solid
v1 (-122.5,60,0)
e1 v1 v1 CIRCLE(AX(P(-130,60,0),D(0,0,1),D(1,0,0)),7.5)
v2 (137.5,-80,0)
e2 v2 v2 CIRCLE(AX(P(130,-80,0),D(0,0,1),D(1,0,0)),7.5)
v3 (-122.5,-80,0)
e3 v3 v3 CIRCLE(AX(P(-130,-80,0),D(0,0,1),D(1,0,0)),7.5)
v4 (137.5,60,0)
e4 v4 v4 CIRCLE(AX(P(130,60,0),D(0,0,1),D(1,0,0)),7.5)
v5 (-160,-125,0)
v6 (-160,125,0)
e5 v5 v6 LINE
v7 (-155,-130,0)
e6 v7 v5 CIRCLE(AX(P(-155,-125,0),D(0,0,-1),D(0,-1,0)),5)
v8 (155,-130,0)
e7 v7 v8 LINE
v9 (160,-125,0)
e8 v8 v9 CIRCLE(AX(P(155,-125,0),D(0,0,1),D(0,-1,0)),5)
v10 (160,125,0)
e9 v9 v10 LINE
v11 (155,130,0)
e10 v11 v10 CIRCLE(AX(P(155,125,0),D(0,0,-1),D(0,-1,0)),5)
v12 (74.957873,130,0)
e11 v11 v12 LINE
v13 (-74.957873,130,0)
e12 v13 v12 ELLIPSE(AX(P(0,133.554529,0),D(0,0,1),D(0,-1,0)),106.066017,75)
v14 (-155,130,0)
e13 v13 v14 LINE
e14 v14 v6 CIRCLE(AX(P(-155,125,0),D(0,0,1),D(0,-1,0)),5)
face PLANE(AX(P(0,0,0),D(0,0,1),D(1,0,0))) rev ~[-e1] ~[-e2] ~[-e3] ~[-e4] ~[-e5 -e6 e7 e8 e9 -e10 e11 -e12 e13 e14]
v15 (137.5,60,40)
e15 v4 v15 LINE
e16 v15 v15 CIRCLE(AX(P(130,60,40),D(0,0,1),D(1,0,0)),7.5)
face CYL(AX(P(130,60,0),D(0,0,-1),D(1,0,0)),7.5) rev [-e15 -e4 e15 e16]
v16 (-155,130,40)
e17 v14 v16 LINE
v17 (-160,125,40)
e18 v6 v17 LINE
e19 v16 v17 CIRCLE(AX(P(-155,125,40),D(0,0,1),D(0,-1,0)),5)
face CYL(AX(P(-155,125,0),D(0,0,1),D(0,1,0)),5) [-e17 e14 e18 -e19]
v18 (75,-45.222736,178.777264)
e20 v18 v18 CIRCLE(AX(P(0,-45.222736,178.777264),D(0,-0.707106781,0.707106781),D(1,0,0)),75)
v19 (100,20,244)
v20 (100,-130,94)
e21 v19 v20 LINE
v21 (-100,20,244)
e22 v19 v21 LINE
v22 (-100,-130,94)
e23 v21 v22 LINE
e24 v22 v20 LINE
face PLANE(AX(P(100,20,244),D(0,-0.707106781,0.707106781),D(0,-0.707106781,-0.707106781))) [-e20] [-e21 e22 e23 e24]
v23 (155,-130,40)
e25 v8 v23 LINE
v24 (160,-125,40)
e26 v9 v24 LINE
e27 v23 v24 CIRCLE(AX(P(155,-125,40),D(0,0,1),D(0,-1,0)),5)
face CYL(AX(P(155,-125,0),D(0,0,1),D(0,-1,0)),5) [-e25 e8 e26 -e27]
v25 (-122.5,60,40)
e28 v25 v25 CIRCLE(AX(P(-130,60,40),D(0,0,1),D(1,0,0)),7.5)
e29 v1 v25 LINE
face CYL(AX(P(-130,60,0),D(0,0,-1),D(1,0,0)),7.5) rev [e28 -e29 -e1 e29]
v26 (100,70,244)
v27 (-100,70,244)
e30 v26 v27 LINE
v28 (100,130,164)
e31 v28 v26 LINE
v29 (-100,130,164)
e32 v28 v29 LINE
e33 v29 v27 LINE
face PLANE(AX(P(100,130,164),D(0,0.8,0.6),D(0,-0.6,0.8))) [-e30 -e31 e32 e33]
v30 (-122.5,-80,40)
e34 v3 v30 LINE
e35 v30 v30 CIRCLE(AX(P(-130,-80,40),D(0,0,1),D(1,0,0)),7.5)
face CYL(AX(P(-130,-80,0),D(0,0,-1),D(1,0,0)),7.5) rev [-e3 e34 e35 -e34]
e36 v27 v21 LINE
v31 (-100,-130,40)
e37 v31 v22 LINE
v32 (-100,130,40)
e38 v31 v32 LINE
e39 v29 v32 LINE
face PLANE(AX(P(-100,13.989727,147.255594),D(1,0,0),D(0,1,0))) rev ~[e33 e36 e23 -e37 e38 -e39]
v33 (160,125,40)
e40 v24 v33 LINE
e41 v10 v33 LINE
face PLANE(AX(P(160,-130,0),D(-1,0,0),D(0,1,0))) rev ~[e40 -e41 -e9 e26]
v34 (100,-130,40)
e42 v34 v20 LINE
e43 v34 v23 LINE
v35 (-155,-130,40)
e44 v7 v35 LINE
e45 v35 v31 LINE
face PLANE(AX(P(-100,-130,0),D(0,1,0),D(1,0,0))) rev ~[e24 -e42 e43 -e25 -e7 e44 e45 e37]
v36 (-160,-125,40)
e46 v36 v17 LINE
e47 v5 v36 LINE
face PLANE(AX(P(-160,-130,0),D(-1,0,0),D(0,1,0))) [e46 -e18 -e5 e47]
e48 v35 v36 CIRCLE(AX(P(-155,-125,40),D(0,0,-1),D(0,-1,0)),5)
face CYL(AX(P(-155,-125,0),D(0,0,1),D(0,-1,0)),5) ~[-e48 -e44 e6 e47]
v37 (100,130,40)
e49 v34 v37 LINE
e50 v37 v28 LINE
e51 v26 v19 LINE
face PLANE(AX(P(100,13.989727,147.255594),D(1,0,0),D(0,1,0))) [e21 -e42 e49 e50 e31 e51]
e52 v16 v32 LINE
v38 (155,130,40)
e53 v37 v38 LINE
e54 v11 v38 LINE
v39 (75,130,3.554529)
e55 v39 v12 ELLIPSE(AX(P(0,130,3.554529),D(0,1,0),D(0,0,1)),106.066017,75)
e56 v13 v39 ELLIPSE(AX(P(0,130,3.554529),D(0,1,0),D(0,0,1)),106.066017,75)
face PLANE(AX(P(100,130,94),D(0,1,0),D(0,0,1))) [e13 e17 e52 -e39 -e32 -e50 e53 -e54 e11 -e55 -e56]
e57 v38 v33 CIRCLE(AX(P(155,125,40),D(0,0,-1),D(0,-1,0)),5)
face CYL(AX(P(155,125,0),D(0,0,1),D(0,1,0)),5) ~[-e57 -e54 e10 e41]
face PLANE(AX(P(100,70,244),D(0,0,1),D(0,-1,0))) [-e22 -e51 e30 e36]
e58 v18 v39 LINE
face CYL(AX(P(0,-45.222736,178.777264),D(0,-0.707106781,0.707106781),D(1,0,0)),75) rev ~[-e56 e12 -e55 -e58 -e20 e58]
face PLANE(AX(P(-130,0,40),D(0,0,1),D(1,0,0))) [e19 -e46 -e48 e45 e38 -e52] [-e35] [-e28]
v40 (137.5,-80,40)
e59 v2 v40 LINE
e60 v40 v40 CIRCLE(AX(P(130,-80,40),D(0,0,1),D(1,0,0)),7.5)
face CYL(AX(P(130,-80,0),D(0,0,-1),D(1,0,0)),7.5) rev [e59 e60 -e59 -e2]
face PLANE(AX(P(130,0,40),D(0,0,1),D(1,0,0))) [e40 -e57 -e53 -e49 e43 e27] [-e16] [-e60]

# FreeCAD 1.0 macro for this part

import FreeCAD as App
import Part
import Sketcher
from FreeCAD import Vector
Q = App.Units.Quantity


def edges_at(feature, points):
    """Names of the edges that pass closest to the given points."""
    edges = feature.Shape.Edges
    near = lambda p: min(range(len(edges)), key=lambda i: edges[i].distToShape(Part.Vertex(*p))[0])
    return sorted({f"Edge{near(p) + 1}" for p in points})

doc = App.newDocument("Part")
body = doc.addObject("PartDesign::Body", "Body")

# Sketch on XY plane
sketch1 = body.newObject("Sketcher::SketchObject", "Sketch")
sketch1.AttachmentSupport = (doc.getObject("XY_Plane"), [""])
sketch1.MapMode = "FlatFace"
sketch1.addGeometry([
    Part.LineSegment(Vector(100, 130, 0), Vector(100, -130, 0)),  # 0
    Part.LineSegment(Vector(100, -130, 0), Vector(160, -130, 0)),  # 1
    Part.LineSegment(Vector(160, -130, 0), Vector(160, 130, 0)),  # 2
    Part.LineSegment(Vector(160, 130, 0), Vector(100, 130, 0)),  # 3
    Part.Circle(Vector(130, -80, 0), Vector(0, 0, 1), 7.5),  # 4
    Part.Circle(Vector(130, 60, 0), Vector(0, 0, 1), 7.5),  # 5
], False)
sketch1.addConstraint([
    Sketcher.Constraint("Coincident", 0, 2, 1, 1),
    Sketcher.Constraint("Coincident", 1, 2, 2, 1),
    Sketcher.Constraint("Coincident", 2, 2, 3, 1),
    Sketcher.Constraint("Coincident", 3, 2, 0, 1),
    Sketcher.Constraint("Vertical", 0),
    Sketcher.Constraint("Horizontal", 1),
    Sketcher.Constraint("Vertical", 2),
    Sketcher.Constraint("Horizontal", 3),
    Sketcher.Constraint("Equal", 4, 5),
    Sketcher.Constraint("Vertical", 4, 3, 5, 3),
    Sketcher.Constraint("Diameter", 4, Q("15 mm")),
    Sketcher.Constraint("DistanceX", 1, 1, 1, 2, Q("60 mm")),
    Sketcher.Constraint("DistanceY", 0, 2, 0, 1, Q("260 mm")),
    Sketcher.Constraint("DistanceX", -1, 1, 4, 3, Q("130 mm")),
    Sketcher.Constraint("DistanceY", 4, 3, -1, 1, Q("80 mm")),
    Sketcher.Constraint("DistanceY", -1, 1, 5, 3, Q("60 mm")),
    Sketcher.Constraint("DistanceX", -1, 1, 0, 2, Q("100 mm")),
    Sketcher.Constraint("DistanceY", 0, 2, -1, 1, Q("130 mm")),
])
pad1 = body.newObject("PartDesign::Pad", "Pad")
pad1.Profile = sketch1
pad1.Length = 40
body2 = doc.addObject("PartDesign::Body", "Body001")

# Sketch on XY plane
sketch2 = body2.newObject("Sketcher::SketchObject", "Sketch001")
sketch2.AttachmentSupport = (doc.getObject("XY_Plane001"), [""])
sketch2.MapMode = "FlatFace"
sketch2.addGeometry([
    Part.LineSegment(Vector(-160, 130, 0), Vector(-160, -130, 0)),  # 0
    Part.LineSegment(Vector(-160, -130, 0), Vector(-100, -130, 0)),  # 1
    Part.LineSegment(Vector(-100, -130, 0), Vector(-100, 130, 0)),  # 2
    Part.LineSegment(Vector(-100, 130, 0), Vector(-160, 130, 0)),  # 3
    Part.Circle(Vector(-130, -80, 0), Vector(0, 0, 1), 7.5),  # 4
    Part.Circle(Vector(-130, 60, 0), Vector(0, 0, 1), 7.5),  # 5
], False)
sketch2.addConstraint([
    Sketcher.Constraint("Coincident", 0, 2, 1, 1),
    Sketcher.Constraint("Coincident", 1, 2, 2, 1),
    Sketcher.Constraint("Coincident", 2, 2, 3, 1),
    Sketcher.Constraint("Coincident", 3, 2, 0, 1),
    Sketcher.Constraint("Vertical", 0),
    Sketcher.Constraint("Horizontal", 1),
    Sketcher.Constraint("Vertical", 2),
    Sketcher.Constraint("Horizontal", 3),
    Sketcher.Constraint("Equal", 4, 5),
    Sketcher.Constraint("Vertical", 4, 3, 5, 3),
    Sketcher.Constraint("Diameter", 4, Q("15 mm")),
    Sketcher.Constraint("DistanceX", 1, 1, 1, 2, Q("60 mm")),
    Sketcher.Constraint("DistanceY", 0, 2, 0, 1, Q("260 mm")),
    Sketcher.Constraint("DistanceX", 4, 3, -1, 1, Q("130 mm")),
    Sketcher.Constraint("DistanceY", 4, 3, -1, 1, Q("80 mm")),
    Sketcher.Constraint("DistanceY", -1, 1, 5, 3, Q("60 mm")),
    Sketcher.Constraint("DistanceX", 0, 2, -1, 1, Q("160 mm")),
    Sketcher.Constraint("DistanceY", 0, 2, -1, 1, Q("130 mm")),
])
pad2 = body2.newObject("PartDesign::Pad", "Pad001")
pad2.Profile = sketch2
pad2.Length = 40
body.AllowCompound = True
doc.recompute()

boolean = body.newObject("PartDesign::Boolean", "Boolean")
boolean.Type = "Fuse"
boolean.addObjects([body2])

# Sketch on XY plane
sketch3 = body.newObject("Sketcher::SketchObject", "Sketch002")
sketch3.AttachmentSupport = (doc.getObject("XY_Plane"), [""])
sketch3.MapMode = "FlatFace"
sketch3.addGeometry([
    Part.LineSegment(Vector(-100, 130, 0), Vector(-100, -130, 0)),
    Part.LineSegment(Vector(-100, -130, 0), Vector(100, -130, 0)),
    Part.LineSegment(Vector(100, -130, 0), Vector(100, 130, 0)),
    Part.LineSegment(Vector(100, 130, 0), Vector(-100, 130, 0)),
], False)
sketch3.addConstraint([
    Sketcher.Constraint("Coincident", 0, 2, 1, 1),
    Sketcher.Constraint("Coincident", 1, 2, 2, 1),
    Sketcher.Constraint("Coincident", 2, 2, 3, 1),
    Sketcher.Constraint("Coincident", 3, 2, 0, 1),
    Sketcher.Constraint("Vertical", 0),
    Sketcher.Constraint("Horizontal", 1),
    Sketcher.Constraint("Vertical", 2),
    Sketcher.Constraint("Horizontal", 3),
    Sketcher.Constraint("Symmetric", 0, 2, 2, 2, -1, 1),
    Sketcher.Constraint("DistanceX", 1, 1, 1, 2, Q("200 mm")),
    Sketcher.Constraint("DistanceY", 0, 2, 0, 1, Q("260 mm")),
])
pad3 = body.newObject("PartDesign::Pad", "Pad002")
pad3.Profile = sketch3
pad3.Length = 94

# Sketch on YZ plane
sketch4 = body.newObject("Sketcher::SketchObject", "Sketch003")
sketch4.AttachmentSupport = (doc.getObject("YZ_Plane"), [""])
sketch4.MapMode = "FlatFace"
sketch4.AttachmentOffset = App.Placement(Vector(0, 0, 100), App.Rotation())
sketch4.addGeometry([
    Part.LineSegment(Vector(20, 244, 0), Vector(-130, 94, 0)),  # 0
    Part.LineSegment(Vector(-130, 94, 0), Vector(130, 94, 0)),  # 1
    Part.LineSegment(Vector(130, 94, 0), Vector(130, 164, 0)),  # 2
    Part.LineSegment(Vector(130, 164, 0), Vector(70, 244, 0)),  # 3
    Part.LineSegment(Vector(70, 244, 0), Vector(20, 244, 0)),  # 4
], False)
sketch4.addConstraint([
    Sketcher.Constraint("Coincident", 0, 2, 1, 1),
    Sketcher.Constraint("Coincident", 1, 2, 2, 1),
    Sketcher.Constraint("Coincident", 2, 2, 3, 1),
    Sketcher.Constraint("Coincident", 3, 2, 4, 1),
    Sketcher.Constraint("Coincident", 4, 2, 0, 1),
    Sketcher.Constraint("Horizontal", 1),
    Sketcher.Constraint("Vertical", 2),
    Sketcher.Constraint("Horizontal", 4),
    Sketcher.Constraint("DistanceX", 1, 1, 1, 2, Q("260 mm")),
    Sketcher.Constraint("DistanceX", 4, 2, 4, 1, Q("50 mm")),
    Sketcher.Constraint("DistanceY", 2, 1, 2, 2, Q("70 mm")),
    Sketcher.Constraint("Angle", 0, Q("-135 deg")),
    Sketcher.Constraint("Distance", 3, Q("100 mm")),
    Sketcher.Constraint("DistanceX", 0, 2, -1, 1, Q("130 mm")),
    Sketcher.Constraint("DistanceY", -1, 1, 0, 2, Q("94 mm")),
])
pad4 = body.newObject("PartDesign::Pad", "Pad003")
pad4.Profile = sketch4
pad4.Length = 200
pad4.Reversed = True

# Sketch on an angled plane
sketch5 = body.newObject("Sketcher::SketchObject", "Sketch004")
sketch5.Placement = App.Placement(Vector(0, -112, 112), App.Rotation(Vector(1, 0, 0), Vector(0, 0.707106781, 0.707106781), Vector(0, -0.707106781, 0.707106781), "ZXY"))
sketch5.addGeometry(Part.Circle(Vector(0, 94.437313, 0), Vector(0, 0, 1), 75), False)
sketch5.addConstraint([
    Sketcher.Constraint("PointOnObject", 0, 3, -2),
    Sketcher.Constraint("Diameter", 0, Q("150 mm")),
    Sketcher.Constraint("DistanceY", -1, 1, 0, 3, Q("94.437313 mm")),
])
pocket1 = body.newObject("PartDesign::Pocket", "Pocket")
pocket1.Profile = sketch5
pocket1.Length = 324.75
doc.recompute()

fillet = body.newObject("PartDesign::Fillet", "Fillet")
fillet.Base = (pocket1, edges_at(pocket1, [
    (-160, -130, 20),
    (160, -130, 20),
    (160, 130, 20),
    (-160, 130, 20),
]))
fillet.Radius = 5

doc.recompute()
